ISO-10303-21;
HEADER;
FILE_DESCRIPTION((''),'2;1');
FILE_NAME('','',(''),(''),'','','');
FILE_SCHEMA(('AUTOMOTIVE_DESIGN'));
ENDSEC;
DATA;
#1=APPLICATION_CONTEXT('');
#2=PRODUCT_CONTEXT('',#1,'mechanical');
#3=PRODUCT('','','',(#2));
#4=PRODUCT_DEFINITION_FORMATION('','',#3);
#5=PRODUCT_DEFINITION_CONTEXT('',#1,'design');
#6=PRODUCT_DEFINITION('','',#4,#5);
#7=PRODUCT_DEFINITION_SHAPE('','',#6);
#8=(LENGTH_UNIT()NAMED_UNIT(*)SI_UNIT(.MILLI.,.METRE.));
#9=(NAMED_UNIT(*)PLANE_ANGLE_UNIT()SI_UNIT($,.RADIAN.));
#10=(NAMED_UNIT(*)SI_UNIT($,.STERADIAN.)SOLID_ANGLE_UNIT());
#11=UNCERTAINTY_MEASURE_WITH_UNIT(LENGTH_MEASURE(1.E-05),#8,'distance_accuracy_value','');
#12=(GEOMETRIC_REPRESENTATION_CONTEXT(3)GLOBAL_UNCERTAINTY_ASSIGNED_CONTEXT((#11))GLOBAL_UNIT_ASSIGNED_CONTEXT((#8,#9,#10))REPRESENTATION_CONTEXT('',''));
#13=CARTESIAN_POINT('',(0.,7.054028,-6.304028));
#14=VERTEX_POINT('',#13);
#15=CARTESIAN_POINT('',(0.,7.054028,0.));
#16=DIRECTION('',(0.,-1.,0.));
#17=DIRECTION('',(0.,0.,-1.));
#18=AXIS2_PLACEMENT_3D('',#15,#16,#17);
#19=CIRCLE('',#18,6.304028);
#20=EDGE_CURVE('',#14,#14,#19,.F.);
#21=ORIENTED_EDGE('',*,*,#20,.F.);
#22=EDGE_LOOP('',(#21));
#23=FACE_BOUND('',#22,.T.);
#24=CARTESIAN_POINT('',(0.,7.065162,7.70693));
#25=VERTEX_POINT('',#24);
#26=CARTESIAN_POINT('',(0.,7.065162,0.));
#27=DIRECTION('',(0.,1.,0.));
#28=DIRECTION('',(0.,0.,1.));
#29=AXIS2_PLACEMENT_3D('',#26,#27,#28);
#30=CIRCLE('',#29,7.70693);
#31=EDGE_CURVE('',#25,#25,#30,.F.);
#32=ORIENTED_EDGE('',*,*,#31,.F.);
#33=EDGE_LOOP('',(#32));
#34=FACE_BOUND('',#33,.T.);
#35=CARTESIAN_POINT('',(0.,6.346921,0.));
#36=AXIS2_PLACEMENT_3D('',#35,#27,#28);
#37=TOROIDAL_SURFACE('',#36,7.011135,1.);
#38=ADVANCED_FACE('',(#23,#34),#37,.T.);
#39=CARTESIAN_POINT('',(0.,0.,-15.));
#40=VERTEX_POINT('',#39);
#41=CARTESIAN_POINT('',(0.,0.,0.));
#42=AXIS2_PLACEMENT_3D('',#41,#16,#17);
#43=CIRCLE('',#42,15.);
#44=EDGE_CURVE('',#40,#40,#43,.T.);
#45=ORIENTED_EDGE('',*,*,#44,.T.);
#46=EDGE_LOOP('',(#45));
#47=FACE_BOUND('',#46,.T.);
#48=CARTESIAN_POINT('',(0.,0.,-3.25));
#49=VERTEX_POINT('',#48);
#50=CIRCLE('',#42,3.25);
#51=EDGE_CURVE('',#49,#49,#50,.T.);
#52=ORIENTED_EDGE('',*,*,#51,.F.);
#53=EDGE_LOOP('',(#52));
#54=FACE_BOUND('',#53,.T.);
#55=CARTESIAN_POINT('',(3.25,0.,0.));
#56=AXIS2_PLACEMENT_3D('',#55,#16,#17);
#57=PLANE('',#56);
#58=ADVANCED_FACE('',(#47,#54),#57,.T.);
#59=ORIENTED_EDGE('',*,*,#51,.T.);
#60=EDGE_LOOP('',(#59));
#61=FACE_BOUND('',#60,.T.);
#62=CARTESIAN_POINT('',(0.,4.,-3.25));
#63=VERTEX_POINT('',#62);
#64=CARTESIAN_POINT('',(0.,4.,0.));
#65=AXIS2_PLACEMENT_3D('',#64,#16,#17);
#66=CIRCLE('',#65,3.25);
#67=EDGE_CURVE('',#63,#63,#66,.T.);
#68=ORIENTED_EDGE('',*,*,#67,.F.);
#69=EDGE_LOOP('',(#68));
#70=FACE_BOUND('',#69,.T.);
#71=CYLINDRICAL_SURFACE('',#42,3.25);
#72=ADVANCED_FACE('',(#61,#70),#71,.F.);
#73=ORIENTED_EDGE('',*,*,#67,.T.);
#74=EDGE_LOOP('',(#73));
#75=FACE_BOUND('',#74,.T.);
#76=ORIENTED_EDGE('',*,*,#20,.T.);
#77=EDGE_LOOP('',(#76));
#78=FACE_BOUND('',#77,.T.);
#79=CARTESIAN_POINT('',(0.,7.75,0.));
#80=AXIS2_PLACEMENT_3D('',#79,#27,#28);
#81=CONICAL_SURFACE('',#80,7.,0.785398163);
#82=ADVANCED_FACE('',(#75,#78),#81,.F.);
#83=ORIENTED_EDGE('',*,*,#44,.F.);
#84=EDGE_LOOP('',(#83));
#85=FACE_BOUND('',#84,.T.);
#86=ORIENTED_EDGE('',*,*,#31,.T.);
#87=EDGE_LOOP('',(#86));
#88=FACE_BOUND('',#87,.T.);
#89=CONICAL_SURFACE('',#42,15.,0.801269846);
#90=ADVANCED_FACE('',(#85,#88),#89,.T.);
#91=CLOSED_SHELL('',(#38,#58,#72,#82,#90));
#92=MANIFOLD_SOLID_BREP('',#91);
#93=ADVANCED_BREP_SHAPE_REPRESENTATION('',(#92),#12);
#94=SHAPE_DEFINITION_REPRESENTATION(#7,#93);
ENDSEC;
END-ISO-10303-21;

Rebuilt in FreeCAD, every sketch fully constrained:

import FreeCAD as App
import Part
import Sketcher

V = App.Vector
Q = App.Units.Quantity


def edges_at(feature, points):
    """Names of the edges that pass closest to the given points."""
    edges = feature.Shape.Edges
    near = lambda p: min(range(len(edges)), key=lambda i: edges[i].distToShape(Part.Vertex(*p))[0])
    return sorted({f"Edge{near(p) + 1}" for p in points})

doc = App.newDocument("Part")
params = doc.addObject("Spreadsheet::Sheet", "Params")
for row, (alias, value) in enumerate([
    ("sketch1_height", "4 mm"),
    ("sketch1_width", "11.75 mm"),
    ("revolution_angle", "360 deg"),
    ("fillet_radius", "1 mm"),
], start=1):
    params.set(f"A{row}", alias)
    params.set(f"B{row}", "=" + value)
    params.setAlias(f"B{row}", alias)

body = doc.addObject("PartDesign::Body", "Body")

# Sketch on XY plane
sketch1 = doc.addObject("Sketcher::SketchObject", "Sketch")
body.addObject(sketch1)
sketch1.AttachmentSupport = (doc.XY_Plane, [""])
sketch1.MapMode = "FlatFace"
sketch1.addGeometry([
    Part.LineSegment(V(3.25, 0, 0), V(15, 0, 0)),
    Part.LineSegment(V(15, 0, 0), V(7, 7.75, 0)),
    Part.LineSegment(V(7, 7.75, 0), V(3.25, 4, 0)),
    Part.LineSegment(V(3.25, 4, 0), V(3.25, 0, 0)),
], False)
sketch1.addConstraint([
    Sketcher.Constraint("Coincident", 0, 2, 1, 1),
    Sketcher.Constraint("Coincident", 1, 2, 2, 1),
    Sketcher.Constraint("Coincident", 2, 2, 3, 1),
    Sketcher.Constraint("Coincident", 3, 2, 0, 1),
    Sketcher.Constraint("Horizontal", 0),
    Sketcher.Constraint("Vertical", 3),
    Sketcher.Constraint("PointOnObject", 0, 2, -1),
    Sketcher.Constraint("DistanceY", 3, 2, 3, 1, 4.0),
    Sketcher.Constraint("Angle", 2, Q("-135 deg")),
    Sketcher.Constraint("DistanceX", -1, 1, 0, 2, 15.0),
    Sketcher.Constraint("DistanceX", -1, 1, 1, 2, 7.0),
    Sketcher.Constraint("DistanceX", 0, 1, 0, 2, 11.75),
])
sketch1.setExpression("Constraints[7]", "Params.sketch1_height")
sketch1.setExpression("Constraints[11]", "Params.sketch1_width")
revolution = doc.addObject("PartDesign::Revolution", "Revolution")
body.addObject(revolution)
revolution.Profile = sketch1
revolution.ReferenceAxis = (sketch1, ["V_Axis"])
revolution.setExpression("Angle", "Params.revolution_angle")
doc.recompute()

fillet = doc.addObject("PartDesign::Fillet", "Fillet")
body.addObject(fillet)
fillet.Base = (revolution, edges_at(revolution, [(-7, 7.75, 0)]))
fillet.setExpression("Radius", "Params.fillet_radius")

doc.recompute()
